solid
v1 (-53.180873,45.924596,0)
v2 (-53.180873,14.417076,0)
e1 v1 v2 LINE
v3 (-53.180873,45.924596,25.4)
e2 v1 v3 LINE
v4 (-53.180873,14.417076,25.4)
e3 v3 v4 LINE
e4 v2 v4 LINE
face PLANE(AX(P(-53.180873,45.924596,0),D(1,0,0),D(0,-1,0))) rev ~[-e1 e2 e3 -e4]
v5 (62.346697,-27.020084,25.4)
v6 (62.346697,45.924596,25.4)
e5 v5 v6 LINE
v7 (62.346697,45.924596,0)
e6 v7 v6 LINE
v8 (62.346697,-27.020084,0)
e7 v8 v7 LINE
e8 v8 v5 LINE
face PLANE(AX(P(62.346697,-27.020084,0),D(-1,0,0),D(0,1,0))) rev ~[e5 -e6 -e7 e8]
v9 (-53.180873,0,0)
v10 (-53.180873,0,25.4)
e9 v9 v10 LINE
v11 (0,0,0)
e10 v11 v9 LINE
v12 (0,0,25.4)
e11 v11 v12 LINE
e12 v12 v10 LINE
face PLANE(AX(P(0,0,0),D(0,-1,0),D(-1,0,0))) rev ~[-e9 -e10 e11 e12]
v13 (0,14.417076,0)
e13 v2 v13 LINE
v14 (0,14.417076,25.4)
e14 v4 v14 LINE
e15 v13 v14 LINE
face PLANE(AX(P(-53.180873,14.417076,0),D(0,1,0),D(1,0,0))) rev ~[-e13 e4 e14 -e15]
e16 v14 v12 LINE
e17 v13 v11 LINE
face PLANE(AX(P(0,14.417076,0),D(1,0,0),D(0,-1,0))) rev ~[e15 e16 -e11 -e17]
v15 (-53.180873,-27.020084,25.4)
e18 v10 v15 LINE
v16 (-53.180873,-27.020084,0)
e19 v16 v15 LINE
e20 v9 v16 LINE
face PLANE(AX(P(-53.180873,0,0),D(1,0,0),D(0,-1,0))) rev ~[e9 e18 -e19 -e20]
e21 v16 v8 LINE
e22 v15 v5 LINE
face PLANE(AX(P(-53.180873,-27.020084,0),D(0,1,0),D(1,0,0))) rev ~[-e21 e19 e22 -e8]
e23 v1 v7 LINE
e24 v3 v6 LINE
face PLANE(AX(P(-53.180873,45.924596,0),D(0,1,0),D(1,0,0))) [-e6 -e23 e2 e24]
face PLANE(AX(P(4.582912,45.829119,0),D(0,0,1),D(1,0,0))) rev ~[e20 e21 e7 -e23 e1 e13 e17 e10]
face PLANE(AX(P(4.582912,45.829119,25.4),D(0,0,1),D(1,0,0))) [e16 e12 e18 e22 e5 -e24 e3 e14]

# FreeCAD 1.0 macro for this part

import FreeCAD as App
import Part
import Sketcher
Q = App.Units.Quantity


def add_polygon(sketch, points):
    """Adds a closed chain of lines whose ends are joined by coincident constraints."""
    first, n = sketch.GeometryCount, len(points)
    for a, b in zip(points, points[1:] + points[:1]):
        sketch.addGeometry(Part.LineSegment(App.Vector(*a, 0), App.Vector(*b, 0)), False)
    for i in range(n):
        sketch.addConstraint(Sketcher.Constraint("Coincident", first + i, 2, first + (i + 1) % n, 1))

doc = App.newDocument("Part")
body = doc.addObject("PartDesign::Body", "Body")

# Sketch on XY plane
sketch1 = doc.addObject("Sketcher::SketchObject", "Sketch")
body.addObject(sketch1)
sketch1.AttachmentSupport = (doc.XY_Plane, [""])
sketch1.MapMode = "FlatFace"
add_polygon(sketch1, [(-53.180873, 45.924596), (-53.180873, 14.417076), (0, 14.417076), (0, 0), (-53.180873, 0), (-53.180873, -27.020084), (62.346697, -27.020084), (62.346697, 45.924596)])  # lines 0-7
sketch1.addConstraint(Sketcher.Constraint("Vertical", 0))
sketch1.addConstraint(Sketcher.Constraint("Horizontal", 1))
sketch1.addConstraint(Sketcher.Constraint("Vertical", 2))
sketch1.addConstraint(Sketcher.Constraint("Horizontal", 3))
sketch1.addConstraint(Sketcher.Constraint("Vertical", 4))
sketch1.addConstraint(Sketcher.Constraint("Horizontal", 5))
sketch1.addConstraint(Sketcher.Constraint("Vertical", 6))
sketch1.addConstraint(Sketcher.Constraint("Horizontal", 7))
sketch1.addConstraint(Sketcher.Constraint("Coincident", 2, 2, -1, 1))
sketch1.addConstraint(Sketcher.Constraint("Vertical", 0, 2, 3, 2))
sketch1.addConstraint(Sketcher.Constraint("DistanceX", 5, 1, 5, 2, 115.52757))
sketch1.addConstraint(Sketcher.Constraint("DistanceY", 0, 2, 0, 1, 31.50752))
sketch1.addConstraint(Sketcher.Constraint("DistanceY", 6, 1, 6, 2, 72.94468))
sketch1.addConstraint(Sketcher.Constraint("DistanceX", 1, 1, 1, 2, 53.180873))
sketch1.addConstraint(Sketcher.Constraint("DistanceY", 2, 2, 2, 1, 14.417076))
pad1 = doc.addObject("PartDesign::Pad", "Pad")
body.addObject(pad1)
pad1.Profile = sketch1
pad1.Length = Q("1 in")

doc.recompute()
